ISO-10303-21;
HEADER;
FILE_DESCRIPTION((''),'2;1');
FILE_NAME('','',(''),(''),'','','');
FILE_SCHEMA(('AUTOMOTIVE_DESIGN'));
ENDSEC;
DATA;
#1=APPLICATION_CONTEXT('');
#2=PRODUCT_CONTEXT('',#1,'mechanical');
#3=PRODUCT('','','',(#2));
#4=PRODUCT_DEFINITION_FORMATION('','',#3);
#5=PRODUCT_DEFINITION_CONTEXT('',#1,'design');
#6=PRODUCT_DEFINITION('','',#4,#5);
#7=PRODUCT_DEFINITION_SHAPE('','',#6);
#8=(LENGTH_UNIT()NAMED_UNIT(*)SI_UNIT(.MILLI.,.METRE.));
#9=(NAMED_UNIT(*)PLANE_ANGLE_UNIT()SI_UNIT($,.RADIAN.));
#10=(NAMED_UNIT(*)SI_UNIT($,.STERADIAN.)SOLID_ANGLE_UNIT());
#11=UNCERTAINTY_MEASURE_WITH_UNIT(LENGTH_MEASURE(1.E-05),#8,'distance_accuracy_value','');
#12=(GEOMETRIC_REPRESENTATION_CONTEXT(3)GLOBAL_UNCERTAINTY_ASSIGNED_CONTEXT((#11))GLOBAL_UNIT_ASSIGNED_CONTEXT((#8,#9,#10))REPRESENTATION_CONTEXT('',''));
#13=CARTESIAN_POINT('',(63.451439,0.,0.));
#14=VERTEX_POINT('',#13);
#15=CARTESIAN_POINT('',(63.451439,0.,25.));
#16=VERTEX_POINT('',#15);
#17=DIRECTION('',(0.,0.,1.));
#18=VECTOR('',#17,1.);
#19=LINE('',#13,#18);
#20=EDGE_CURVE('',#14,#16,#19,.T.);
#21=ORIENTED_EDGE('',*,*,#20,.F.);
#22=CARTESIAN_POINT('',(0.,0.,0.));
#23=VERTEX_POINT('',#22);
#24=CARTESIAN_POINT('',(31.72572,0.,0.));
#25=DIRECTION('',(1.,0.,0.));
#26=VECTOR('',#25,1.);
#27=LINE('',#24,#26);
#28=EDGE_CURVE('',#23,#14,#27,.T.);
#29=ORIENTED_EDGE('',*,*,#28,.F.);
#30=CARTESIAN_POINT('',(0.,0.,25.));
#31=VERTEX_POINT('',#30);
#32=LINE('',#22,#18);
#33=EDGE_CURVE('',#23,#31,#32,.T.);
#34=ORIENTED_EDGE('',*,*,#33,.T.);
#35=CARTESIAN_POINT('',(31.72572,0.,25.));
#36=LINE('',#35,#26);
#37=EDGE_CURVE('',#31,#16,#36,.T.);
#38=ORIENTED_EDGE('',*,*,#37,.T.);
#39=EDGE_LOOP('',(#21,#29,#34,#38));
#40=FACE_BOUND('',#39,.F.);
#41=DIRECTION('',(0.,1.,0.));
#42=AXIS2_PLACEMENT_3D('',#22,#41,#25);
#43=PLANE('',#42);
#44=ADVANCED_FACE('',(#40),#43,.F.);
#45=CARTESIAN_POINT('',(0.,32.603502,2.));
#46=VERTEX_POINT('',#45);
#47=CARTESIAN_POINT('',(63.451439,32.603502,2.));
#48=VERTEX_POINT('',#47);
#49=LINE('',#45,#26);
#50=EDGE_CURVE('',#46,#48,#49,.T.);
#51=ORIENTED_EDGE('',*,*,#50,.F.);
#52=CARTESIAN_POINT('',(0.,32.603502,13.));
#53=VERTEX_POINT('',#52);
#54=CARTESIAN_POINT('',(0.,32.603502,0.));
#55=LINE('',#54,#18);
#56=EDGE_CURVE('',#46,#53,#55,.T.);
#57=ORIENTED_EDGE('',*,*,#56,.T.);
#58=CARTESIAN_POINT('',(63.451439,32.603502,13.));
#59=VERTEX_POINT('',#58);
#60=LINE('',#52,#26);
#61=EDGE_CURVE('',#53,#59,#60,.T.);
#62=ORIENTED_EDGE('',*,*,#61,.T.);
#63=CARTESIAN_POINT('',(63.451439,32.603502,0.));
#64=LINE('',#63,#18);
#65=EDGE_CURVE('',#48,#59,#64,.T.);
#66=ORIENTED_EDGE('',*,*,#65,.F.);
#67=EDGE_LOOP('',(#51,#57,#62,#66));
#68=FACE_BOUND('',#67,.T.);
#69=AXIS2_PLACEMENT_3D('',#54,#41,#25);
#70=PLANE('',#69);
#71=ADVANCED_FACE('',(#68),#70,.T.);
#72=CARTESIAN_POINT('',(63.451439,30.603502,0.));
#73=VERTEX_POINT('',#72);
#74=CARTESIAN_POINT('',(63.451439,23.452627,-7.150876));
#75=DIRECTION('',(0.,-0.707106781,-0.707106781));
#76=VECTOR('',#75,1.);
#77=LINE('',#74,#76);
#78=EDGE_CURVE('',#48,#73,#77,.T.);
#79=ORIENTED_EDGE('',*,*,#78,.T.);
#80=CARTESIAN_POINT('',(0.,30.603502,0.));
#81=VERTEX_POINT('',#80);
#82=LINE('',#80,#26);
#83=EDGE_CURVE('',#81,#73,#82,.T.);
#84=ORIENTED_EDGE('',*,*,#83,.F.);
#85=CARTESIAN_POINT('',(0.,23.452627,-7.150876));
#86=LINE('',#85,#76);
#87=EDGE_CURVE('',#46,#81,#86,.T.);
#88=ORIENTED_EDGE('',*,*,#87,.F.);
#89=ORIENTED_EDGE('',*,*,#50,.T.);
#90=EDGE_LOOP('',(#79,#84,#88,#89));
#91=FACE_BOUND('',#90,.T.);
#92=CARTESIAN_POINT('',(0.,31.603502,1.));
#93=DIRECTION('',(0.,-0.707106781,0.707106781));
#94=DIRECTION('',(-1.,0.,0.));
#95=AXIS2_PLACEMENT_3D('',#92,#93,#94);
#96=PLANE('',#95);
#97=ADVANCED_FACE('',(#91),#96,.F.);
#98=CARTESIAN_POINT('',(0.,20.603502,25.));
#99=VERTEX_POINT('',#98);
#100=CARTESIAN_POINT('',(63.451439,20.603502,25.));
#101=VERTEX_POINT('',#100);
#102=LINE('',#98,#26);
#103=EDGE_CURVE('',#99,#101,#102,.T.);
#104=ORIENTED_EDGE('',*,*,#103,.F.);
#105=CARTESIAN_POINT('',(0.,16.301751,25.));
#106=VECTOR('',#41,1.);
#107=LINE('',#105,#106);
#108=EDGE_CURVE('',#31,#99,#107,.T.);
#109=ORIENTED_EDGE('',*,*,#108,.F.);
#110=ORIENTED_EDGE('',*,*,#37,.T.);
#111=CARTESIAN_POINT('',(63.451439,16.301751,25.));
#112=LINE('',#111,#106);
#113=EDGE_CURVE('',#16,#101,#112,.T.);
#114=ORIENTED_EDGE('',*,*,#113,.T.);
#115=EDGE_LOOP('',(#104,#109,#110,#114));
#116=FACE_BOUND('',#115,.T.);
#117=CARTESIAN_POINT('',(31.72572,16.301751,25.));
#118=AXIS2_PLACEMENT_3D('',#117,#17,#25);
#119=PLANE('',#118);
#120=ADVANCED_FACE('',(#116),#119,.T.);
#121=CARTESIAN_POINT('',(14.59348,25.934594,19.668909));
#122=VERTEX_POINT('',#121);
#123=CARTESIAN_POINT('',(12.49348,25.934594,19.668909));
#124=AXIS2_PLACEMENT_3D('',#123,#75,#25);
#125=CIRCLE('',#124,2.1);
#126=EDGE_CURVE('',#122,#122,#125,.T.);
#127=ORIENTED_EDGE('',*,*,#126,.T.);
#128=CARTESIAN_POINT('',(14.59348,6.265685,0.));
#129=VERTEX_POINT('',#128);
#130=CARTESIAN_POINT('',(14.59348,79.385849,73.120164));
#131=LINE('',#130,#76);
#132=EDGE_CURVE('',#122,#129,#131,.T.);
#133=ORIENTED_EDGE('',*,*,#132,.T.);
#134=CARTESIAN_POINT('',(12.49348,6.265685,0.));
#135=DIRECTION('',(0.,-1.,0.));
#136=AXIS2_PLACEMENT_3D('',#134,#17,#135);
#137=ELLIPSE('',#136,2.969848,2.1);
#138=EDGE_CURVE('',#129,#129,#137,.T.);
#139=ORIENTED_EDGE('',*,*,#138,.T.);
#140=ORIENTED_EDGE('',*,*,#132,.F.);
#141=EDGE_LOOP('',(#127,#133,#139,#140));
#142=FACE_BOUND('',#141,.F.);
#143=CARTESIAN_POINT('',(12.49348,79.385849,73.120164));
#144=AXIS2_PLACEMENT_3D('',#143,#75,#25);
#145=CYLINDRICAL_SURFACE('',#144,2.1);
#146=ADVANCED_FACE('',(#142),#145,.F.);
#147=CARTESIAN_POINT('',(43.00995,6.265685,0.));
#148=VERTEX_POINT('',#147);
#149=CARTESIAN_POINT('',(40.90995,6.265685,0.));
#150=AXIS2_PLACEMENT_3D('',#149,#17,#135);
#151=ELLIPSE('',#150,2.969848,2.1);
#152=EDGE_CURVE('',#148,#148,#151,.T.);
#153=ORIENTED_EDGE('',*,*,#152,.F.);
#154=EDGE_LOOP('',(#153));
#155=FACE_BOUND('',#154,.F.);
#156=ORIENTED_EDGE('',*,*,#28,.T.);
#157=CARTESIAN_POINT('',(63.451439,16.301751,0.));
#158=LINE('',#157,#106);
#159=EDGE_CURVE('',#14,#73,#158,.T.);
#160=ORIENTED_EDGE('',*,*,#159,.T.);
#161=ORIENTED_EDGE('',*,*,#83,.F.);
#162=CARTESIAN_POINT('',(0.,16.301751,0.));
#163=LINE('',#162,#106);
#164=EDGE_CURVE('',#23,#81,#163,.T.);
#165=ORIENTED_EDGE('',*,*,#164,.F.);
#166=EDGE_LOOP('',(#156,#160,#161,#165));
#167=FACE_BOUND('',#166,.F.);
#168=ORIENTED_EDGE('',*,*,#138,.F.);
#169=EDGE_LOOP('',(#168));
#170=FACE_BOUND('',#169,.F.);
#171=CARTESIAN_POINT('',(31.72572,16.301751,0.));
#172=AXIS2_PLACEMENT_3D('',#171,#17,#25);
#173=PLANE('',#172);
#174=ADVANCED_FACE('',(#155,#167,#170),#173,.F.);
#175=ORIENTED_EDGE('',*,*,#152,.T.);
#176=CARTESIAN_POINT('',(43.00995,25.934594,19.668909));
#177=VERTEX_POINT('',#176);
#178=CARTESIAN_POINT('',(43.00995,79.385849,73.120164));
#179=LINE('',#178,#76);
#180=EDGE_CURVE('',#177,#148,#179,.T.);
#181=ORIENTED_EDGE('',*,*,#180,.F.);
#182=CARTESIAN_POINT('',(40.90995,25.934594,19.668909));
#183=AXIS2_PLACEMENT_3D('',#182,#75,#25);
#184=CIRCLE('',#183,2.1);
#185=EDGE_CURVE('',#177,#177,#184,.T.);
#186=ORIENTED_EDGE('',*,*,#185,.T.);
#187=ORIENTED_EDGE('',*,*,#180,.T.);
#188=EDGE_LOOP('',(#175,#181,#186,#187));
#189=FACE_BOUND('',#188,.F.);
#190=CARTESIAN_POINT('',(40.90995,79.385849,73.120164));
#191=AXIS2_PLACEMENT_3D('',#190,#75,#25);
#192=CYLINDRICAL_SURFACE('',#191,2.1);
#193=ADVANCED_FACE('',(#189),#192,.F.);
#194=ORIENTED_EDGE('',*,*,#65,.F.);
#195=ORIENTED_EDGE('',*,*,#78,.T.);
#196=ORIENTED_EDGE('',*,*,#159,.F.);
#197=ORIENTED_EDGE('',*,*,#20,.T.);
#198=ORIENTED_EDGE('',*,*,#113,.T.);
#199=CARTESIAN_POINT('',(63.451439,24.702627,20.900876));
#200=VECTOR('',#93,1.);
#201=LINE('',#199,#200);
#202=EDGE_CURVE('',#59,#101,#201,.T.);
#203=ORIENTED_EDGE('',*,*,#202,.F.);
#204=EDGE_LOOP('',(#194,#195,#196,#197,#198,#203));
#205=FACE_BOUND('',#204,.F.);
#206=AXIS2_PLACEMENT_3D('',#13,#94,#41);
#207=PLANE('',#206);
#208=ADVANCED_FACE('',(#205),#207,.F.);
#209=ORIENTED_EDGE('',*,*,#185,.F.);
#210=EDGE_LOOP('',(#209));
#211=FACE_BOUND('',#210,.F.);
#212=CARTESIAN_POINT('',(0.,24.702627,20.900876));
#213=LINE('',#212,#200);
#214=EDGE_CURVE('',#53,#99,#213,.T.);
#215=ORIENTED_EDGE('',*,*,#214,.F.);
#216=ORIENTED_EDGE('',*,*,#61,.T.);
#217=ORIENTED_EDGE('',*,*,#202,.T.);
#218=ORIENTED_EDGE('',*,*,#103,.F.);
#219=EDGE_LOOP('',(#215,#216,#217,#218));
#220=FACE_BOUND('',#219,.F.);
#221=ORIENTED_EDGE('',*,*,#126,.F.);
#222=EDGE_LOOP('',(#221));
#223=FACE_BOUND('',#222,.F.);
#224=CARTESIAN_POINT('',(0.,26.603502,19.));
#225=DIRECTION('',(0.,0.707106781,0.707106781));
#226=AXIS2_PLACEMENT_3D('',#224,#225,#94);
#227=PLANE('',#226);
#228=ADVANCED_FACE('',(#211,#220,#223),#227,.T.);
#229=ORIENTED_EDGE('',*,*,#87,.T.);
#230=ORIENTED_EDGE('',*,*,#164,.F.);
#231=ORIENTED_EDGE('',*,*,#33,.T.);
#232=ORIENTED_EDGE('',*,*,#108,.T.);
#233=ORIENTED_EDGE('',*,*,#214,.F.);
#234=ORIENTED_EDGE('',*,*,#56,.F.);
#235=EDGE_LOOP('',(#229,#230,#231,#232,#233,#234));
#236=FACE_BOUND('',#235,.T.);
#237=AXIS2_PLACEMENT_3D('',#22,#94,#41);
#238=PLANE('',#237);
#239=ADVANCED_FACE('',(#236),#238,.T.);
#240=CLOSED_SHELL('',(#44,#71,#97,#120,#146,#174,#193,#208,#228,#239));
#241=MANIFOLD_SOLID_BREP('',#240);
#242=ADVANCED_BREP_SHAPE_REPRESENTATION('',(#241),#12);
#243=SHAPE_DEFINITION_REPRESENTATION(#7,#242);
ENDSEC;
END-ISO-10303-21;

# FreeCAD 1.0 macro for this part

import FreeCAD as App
import Part
import Sketcher


def edges_at(feature, points):
    """Names of the edges that pass closest to the given points."""
    edges = feature.Shape.Edges
    near = lambda p: min(range(len(edges)), key=lambda i: edges[i].distToShape(Part.Vertex(*p))[0])
    return sorted({f"Edge{near(p) + 1}" for p in points})


def add_polygon(sketch, points):
    """Adds a closed chain of lines whose ends are joined by coincident constraints."""
    first, n = sketch.GeometryCount, len(points)
    for a, b in zip(points, points[1:] + points[:1]):
        sketch.addGeometry(Part.LineSegment(App.Vector(*a, 0), App.Vector(*b, 0)), False)
    for i in range(n):
        sketch.addConstraint(Sketcher.Constraint("Coincident", first + i, 2, first + (i + 1) % n, 1))

doc = App.newDocument("Part")
body = doc.addObject("PartDesign::Body", "Body")

sketch1 = doc.addObject("Sketcher::SketchObject", "Sketch")
body.addObject(sketch1)
sketch1.AttachmentSupport = (doc.XY_Plane, [""])
sketch1.MapMode = "FlatFace"
add_polygon(sketch1, [(0, 32.603502), (0, 0), (63.451439, 0), (63.451439, 32.603502)])
sketch1.addConstraint(Sketcher.Constraint("Vertical", 0))
sketch1.addConstraint(Sketcher.Constraint("Horizontal", 1))
sketch1.addConstraint(Sketcher.Constraint("Vertical", 2))
sketch1.addConstraint(Sketcher.Constraint("Horizontal", 3))
sketch1.addConstraint(Sketcher.Constraint("Coincident", 0, 2, -1, 1))
sketch1.addConstraint(Sketcher.Constraint("DistanceX", 1, 1, 1, 2, 63.451439))
sketch1.addConstraint(Sketcher.Constraint("DistanceY", 0, 2, 0, 1, 32.603502))
pad1 = doc.addObject("PartDesign::Pad", "Pad")
body.addObject(pad1)
pad1.Profile = sketch1
pad1.Length = 25
doc.recompute()

chamfer = doc.addObject("PartDesign::Chamfer", "Chamfer")
body.addObject(chamfer)
chamfer.Base = (pad1, edges_at(pad1, [(31.726, 32.604, 25)]))
chamfer.Size = 12

sketch2 = doc.addObject("Sketcher::SketchObject", "Sketch001")
body.addObject(sketch2)
sketch2.Placement = App.Placement(App.Vector(0, 22.801751, 22.801751), App.Rotation(App.Vector(-1, 0, 0), App.Vector(0, -0.707106781, 0.707106781), App.Vector(0, 0.707106781, 0.707106781), "ZXY"))
sketch2.addGeometry(Part.Circle(App.Vector(-12.49348, -4.430508, 0), App.Vector(0, 0, 1), 2.1), False)
sketch2.addGeometry(Part.Circle(App.Vector(-40.90995, -4.430508, 0), App.Vector(0, 0, 1), 2.1), False)
sketch2.addConstraint(Sketcher.Constraint("Equal", 0, 1))
sketch2.addConstraint(Sketcher.Constraint("Horizontal", 0, 3, 1, 3))
sketch2.addConstraint(Sketcher.Constraint("Diameter", 0, 4.2))
sketch2.addConstraint(Sketcher.Constraint("DistanceX", 0, 3, -1, 1, 12.49348))
sketch2.addConstraint(Sketcher.Constraint("DistanceY", 0, 3, -1, 1, 4.430508))
sketch2.addConstraint(Sketcher.Constraint("DistanceX", 1, 3, -1, 1, 40.90995))
doc.recompute()
hole = doc.addObject("PartDesign::Hole", "Hole")
body.addObject(hole)
hole.Profile = sketch2
hole.ThreadType = "None"
hole.Diameter = 4.2
hole.DepthType = "ThroughAll"
doc.recompute()

chamfer2 = doc.addObject("PartDesign::Chamfer", "Chamfer001")
body.addObject(chamfer2)
chamfer2.Base = (hole, edges_at(hole, [(31.726, 32.604, 0)]))
chamfer2.Size = 2

doc.recompute()
